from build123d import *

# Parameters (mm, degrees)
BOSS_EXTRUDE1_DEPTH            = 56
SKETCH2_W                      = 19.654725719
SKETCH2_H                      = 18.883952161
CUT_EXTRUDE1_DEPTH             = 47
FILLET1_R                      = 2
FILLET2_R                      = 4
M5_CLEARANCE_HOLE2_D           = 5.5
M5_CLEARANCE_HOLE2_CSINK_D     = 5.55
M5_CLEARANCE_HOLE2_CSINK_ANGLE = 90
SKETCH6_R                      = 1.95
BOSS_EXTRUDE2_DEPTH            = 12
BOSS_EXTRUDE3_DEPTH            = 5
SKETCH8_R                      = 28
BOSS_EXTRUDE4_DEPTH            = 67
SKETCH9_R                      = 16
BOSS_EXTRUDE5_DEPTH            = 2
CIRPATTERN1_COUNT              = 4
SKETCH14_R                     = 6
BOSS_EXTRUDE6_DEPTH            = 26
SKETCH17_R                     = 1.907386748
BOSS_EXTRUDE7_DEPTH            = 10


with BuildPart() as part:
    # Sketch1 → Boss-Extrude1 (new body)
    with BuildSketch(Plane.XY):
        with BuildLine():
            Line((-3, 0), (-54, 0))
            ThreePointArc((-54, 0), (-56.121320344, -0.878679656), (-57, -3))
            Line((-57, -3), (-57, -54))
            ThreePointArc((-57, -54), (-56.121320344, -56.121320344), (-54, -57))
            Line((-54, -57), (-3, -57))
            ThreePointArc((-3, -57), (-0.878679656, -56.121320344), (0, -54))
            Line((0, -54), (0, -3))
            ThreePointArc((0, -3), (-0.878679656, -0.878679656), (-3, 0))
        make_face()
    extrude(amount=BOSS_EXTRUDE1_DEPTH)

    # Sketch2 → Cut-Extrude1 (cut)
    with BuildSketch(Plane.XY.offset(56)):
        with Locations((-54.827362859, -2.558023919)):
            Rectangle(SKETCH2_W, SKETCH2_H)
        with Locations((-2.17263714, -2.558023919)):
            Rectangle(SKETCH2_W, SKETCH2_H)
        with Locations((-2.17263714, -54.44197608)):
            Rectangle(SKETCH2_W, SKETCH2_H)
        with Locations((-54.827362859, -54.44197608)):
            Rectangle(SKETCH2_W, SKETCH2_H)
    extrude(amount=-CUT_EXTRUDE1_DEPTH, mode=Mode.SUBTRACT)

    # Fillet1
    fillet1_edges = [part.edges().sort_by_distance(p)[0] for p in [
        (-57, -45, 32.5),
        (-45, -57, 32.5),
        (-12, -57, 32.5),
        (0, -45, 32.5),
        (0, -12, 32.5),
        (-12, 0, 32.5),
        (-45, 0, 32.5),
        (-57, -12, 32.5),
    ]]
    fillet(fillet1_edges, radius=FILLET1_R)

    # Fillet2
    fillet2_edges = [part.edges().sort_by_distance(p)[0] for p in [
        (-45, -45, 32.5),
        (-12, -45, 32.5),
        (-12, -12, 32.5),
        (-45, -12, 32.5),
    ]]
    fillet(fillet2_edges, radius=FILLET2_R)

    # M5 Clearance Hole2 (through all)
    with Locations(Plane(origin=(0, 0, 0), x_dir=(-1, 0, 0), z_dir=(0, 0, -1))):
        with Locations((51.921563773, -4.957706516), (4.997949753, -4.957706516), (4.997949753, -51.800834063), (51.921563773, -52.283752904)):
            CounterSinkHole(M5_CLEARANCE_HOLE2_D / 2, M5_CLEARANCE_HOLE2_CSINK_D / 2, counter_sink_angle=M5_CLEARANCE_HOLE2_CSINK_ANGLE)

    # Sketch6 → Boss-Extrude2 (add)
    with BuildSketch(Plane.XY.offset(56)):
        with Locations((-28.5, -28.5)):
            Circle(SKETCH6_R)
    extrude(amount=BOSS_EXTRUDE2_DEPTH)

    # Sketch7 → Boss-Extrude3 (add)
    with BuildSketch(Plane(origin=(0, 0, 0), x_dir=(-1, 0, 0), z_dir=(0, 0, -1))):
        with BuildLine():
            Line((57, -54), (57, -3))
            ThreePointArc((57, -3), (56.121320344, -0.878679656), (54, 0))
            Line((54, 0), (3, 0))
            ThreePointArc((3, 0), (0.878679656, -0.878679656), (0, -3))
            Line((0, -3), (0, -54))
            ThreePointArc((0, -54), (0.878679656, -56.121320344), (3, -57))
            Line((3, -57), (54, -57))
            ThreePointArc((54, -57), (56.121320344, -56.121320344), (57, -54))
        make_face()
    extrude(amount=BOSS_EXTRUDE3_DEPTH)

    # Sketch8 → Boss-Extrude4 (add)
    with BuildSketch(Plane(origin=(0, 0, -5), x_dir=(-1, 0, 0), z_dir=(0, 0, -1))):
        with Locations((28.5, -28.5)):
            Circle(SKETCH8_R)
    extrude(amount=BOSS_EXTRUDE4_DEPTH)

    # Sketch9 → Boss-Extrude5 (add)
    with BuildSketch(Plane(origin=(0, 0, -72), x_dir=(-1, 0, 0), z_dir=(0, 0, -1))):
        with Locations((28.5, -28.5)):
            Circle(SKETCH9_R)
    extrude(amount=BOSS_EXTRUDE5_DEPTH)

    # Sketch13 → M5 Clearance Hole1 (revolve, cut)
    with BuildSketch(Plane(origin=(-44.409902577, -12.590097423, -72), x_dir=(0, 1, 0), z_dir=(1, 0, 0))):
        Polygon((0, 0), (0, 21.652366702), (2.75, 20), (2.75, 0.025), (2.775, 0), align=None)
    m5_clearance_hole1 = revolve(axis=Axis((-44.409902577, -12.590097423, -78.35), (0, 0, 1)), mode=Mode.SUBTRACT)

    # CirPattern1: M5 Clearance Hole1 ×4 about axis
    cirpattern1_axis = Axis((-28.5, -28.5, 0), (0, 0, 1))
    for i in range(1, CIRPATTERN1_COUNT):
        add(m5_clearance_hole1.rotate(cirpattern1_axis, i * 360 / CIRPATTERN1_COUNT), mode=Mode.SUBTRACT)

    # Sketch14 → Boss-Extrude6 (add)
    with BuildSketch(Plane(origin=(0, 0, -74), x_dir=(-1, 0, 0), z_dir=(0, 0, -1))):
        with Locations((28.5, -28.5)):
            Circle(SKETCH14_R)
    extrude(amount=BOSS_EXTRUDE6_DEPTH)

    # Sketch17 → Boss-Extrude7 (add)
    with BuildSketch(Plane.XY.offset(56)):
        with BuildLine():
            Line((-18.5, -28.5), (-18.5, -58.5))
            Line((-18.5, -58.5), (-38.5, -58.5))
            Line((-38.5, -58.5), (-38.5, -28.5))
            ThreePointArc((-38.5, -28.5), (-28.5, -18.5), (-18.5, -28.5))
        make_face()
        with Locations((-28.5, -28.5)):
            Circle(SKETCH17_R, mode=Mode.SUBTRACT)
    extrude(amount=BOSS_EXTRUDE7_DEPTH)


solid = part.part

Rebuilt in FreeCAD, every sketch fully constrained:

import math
import FreeCAD as App
import Part
import Sketcher
Q = App.Units.Quantity


def edges_at(feature, points):
    """Names of the edges that pass closest to the given points."""
    edges = feature.Shape.Edges
    near = lambda p: min(range(len(edges)), key=lambda i: edges[i].distToShape(Part.Vertex(*p))[0])
    return sorted({f"Edge{near(p) + 1}" for p in points})


def add_polygon(sketch, points):
    """Adds a closed chain of lines whose ends are joined by coincident constraints."""
    first, n = sketch.GeometryCount, len(points)
    for a, b in zip(points, points[1:] + points[:1]):
        sketch.addGeometry(Part.LineSegment(App.Vector(*a, 0), App.Vector(*b, 0)), False)
    for i in range(n):
        sketch.addConstraint(Sketcher.Constraint("Coincident", first + i, 2, first + (i + 1) % n, 1))

doc = App.newDocument("Part")
params = doc.addObject("Spreadsheet::Sheet", "Params")
for row, (alias, value) in enumerate([
    ("sketch1_radius", "3 mm"),
    ("sketch1_width", "51 mm"),
    ("pad1_length", "56 mm"),
    ("pocket1_length", "47 mm"),
    ("fillet_radius", "2 mm"),
    ("fillet2_radius", "4 mm"),
    ("sketch3_diameter", "5.5 mm"),
    ("hole_diameter", "5.5 mm"),
    ("hole_csink_diameter", "5.55 mm"),
    ("sketch4_diameter", "3.9 mm"),
    ("pad2_length", "12 mm"),
    ("sketch5_radius", "3 mm"),
    ("sketch5_width", "51 mm"),
    ("pad3_length", "5 mm"),
    ("sketch6_diameter", "56 mm"),
    ("pad4_length", "67 mm"),
    ("sketch7_diameter", "32 mm"),
    ("pad5_length", "2 mm"),
    ("groove_angle", "360 deg"),
    ("sketch9_diameter", "12 mm"),
    ("pad6_length", "26 mm"),
    ("sketch10_radius", "10 mm"),
    ("sketch10_height", "30 mm"),
    ("pad7_length", "10 mm"),
], start=1):
    params.set(f"A{row}", alias)
    params.set(f"B{row}", "=" + value)
    params.setAlias(f"B{row}", alias)

body = doc.addObject("PartDesign::Body", "Body")

# Sketch on XY plane
sketch1 = body.newObject("Sketcher::SketchObject", "Sketch")
sketch1.AttachmentSupport = (doc.getObject("XY_Plane"), [""])
sketch1.MapMode = "FlatFace"
sketch1.addGeometry([
    Part.LineSegment(App.Vector(-3, 0, 0), App.Vector(-54, 0, 0)),  # 0
    Part.ArcOfCircle(Part.Circle(App.Vector(-54, -3, 0), App.Vector(0, 0, 1), 3), math.radians(90), math.radians(180)),  # 1
    Part.LineSegment(App.Vector(-57, -3, 0), App.Vector(-57, -54, 0)),  # 2
    Part.ArcOfCircle(Part.Circle(App.Vector(-54, -54, 0), App.Vector(0, 0, 1), 3), math.radians(180), math.radians(270)),  # 3
    Part.LineSegment(App.Vector(-54, -57, 0), App.Vector(-3, -57, 0)),  # 4
    Part.ArcOfCircle(Part.Circle(App.Vector(-3, -54, 0), App.Vector(0, 0, 1), 3), math.radians(-90), math.radians(0)),  # 5
    Part.LineSegment(App.Vector(0, -54, 0), App.Vector(0, -3, 0)),  # 6
    Part.ArcOfCircle(Part.Circle(App.Vector(-3, -3, 0), App.Vector(0, 0, 1), 3), math.radians(0), math.radians(90)),  # 7
], False)
sketch1.addConstraint([
    Sketcher.Constraint("Tangent", 0, 2, 1, 1),
    Sketcher.Constraint("Tangent", 1, 2, 2, 1),
    Sketcher.Constraint("Tangent", 2, 2, 3, 1),
    Sketcher.Constraint("Tangent", 3, 2, 4, 1),
    Sketcher.Constraint("Tangent", 4, 2, 5, 1),
    Sketcher.Constraint("Tangent", 5, 2, 6, 1),
    Sketcher.Constraint("Tangent", 6, 2, 7, 1),
    Sketcher.Constraint("Tangent", 7, 2, 0, 1),
    Sketcher.Constraint("Horizontal", 0),
    Sketcher.Constraint("Vertical", 2),
    Sketcher.Constraint("Horizontal", 4),
    Sketcher.Constraint("Vertical", 6),
    Sketcher.Constraint("Equal", 1, 3),
    Sketcher.Constraint("Equal", 3, 5),
    Sketcher.Constraint("Equal", 5, 7),
    Sketcher.Constraint("PointOnObject", 0, 2, -1),
    Sketcher.Constraint("PointOnObject", 5, 2, -2),
    Sketcher.Constraint("Equal", 4, 2),
    Sketcher.Constraint("Radius", 1, Q("3 mm")),
    Sketcher.Constraint("DistanceX", 0, 2, 0, 1, Q("51 mm")),
])
sketch1.setExpression("Constraints[18]", "Params.sketch1_radius")
sketch1.setExpression("Constraints[19]", "Params.sketch1_width")
pad1 = body.newObject("PartDesign::Pad", "Pad")
pad1.Profile = sketch1
pad1.setExpression("Length", "Params.pad1_length")

# Sketch on XY plane
sketch2 = body.newObject("Sketcher::SketchObject", "Sketch001")
sketch2.AttachmentSupport = (doc.getObject("XY_Plane"), [""])
sketch2.MapMode = "FlatFace"
sketch2.AttachmentOffset = App.Placement(App.Vector(0, 0, 56), App.Rotation())
add_polygon(sketch2, [(-64.654726, 6.883952), (-64.654726, -12), (-45, -12), (-45, 6.883952)])  # lines 0-3
add_polygon(sketch2, [(-12, 6.883952), (-12, -12), (7.654726, -12), (7.654726, 6.883952)])  # lines 4-7
add_polygon(sketch2, [(-12, -45), (-12, -63.883952), (7.654726, -63.883952), (7.654726, -45)])  # lines 8-11
add_polygon(sketch2, [(-64.654726, -45), (-64.654726, -63.883952), (-45, -63.883952), (-45, -45)])  # lines 12-15
sketch2.addConstraint([
    Sketcher.Constraint("Vertical", 0),
    Sketcher.Constraint("Horizontal", 1),
    Sketcher.Constraint("Vertical", 2),
    Sketcher.Constraint("Horizontal", 3),
    Sketcher.Constraint("Vertical", 4),
    Sketcher.Constraint("Horizontal", 5),
    Sketcher.Constraint("Vertical", 6),
    Sketcher.Constraint("Horizontal", 7),
    Sketcher.Constraint("Vertical", 8),
    Sketcher.Constraint("Horizontal", 9),
    Sketcher.Constraint("Vertical", 10),
    Sketcher.Constraint("Horizontal", 11),
    Sketcher.Constraint("Vertical", 12),
    Sketcher.Constraint("Horizontal", 13),
    Sketcher.Constraint("Vertical", 14),
    Sketcher.Constraint("Horizontal", 15),
    Sketcher.Constraint("Horizontal", 1, 2, 4, 2),
    Sketcher.Constraint("Horizontal", 3, 2, 6, 2),
    Sketcher.Constraint("Horizontal", 9, 2, 12, 2),
    Sketcher.Constraint("Horizontal", 11, 2, 14, 2),
    Sketcher.Constraint("Vertical", 7, 2, 8, 2),
    Sketcher.Constraint("Vertical", 6, 2, 9, 2),
    Sketcher.Constraint("Vertical", 3, 2, 12, 2),
    Sketcher.Constraint("Vertical", 2, 2, 13, 2),
    Sketcher.Constraint("Equal", 3, 5),
    Sketcher.Constraint("Equal", 6, 8),
    Sketcher.Constraint("DistanceY", 0, 2, -1, 1, Q("12 mm")),
    Sketcher.Constraint("DistanceX", 1, 2, -1, 1, Q("45 mm")),
    Sketcher.Constraint("DistanceX", 4, 2, -1, 1, Q("12 mm")),
    Sketcher.Constraint("DistanceY", 10, 2, -1, 1, Q("45 mm")),
    Sketcher.Constraint("DistanceX", 1, 1, 1, 2, Q("19.654726 mm")),
    Sketcher.Constraint("DistanceY", 0, 2, 0, 1, Q("18.883952 mm")),
])
pocket1 = body.newObject("PartDesign::Pocket", "Pocket")
pocket1.Profile = sketch2
pocket1.setExpression("Length", "Params.pocket1_length")
doc.recompute()

fillet = body.newObject("PartDesign::Fillet", "Fillet")
fillet.Base = (pocket1, edges_at(pocket1, [
    (-57, -45, 32.5),
    (-45, -57, 32.5),
    (-12, -57, 32.5),
    (0, -45, 32.5),
    (0, -12, 32.5),
    (-12, 0, 32.5),
    (-45, 0, 32.5),
    (-57, -12, 32.5),
]))
fillet.setExpression("Radius", "Params.fillet_radius")
doc.recompute()

fillet2 = body.newObject("PartDesign::Fillet", "Fillet001")
fillet2.Base = (fillet, edges_at(fillet, [
    (-45, -45, 32.5),
    (-12, -45, 32.5),
    (-12, -12, 32.5),
    (-45, -12, 32.5),
]))
fillet2.setExpression("Radius", "Params.fillet2_radius")

# Sketch on XY plane
sketch3 = body.newObject("Sketcher::SketchObject", "Sketch002")
sketch3.AttachmentSupport = (doc.getObject("XY_Plane"), [""])
sketch3.MapMode = "FlatFace"
sketch3.addGeometry([
    Part.Circle(App.Vector(-51.921564, -4.957707, 0), App.Vector(0, 0, 1), 2.75),
    Part.Circle(App.Vector(-4.99795, -4.957707, 0), App.Vector(0, 0, 1), 2.75),
    Part.Circle(App.Vector(-4.99795, -51.800834, 0), App.Vector(0, 0, 1), 2.75),
    Part.Circle(App.Vector(-51.921564, -52.283753, 0), App.Vector(0, 0, 1), 2.75),
], False)
sketch3.addConstraint([
    Sketcher.Constraint("Equal", 0, 1),
    Sketcher.Constraint("Equal", 1, 2),
    Sketcher.Constraint("Equal", 2, 3),
    Sketcher.Constraint("Horizontal", 0, 3, 1, 3),
    Sketcher.Constraint("Vertical", 1, 3, 2, 3),
    Sketcher.Constraint("Vertical", 0, 3, 3, 3),
    Sketcher.Constraint("Diameter", 0, Q("5.5 mm")),
    Sketcher.Constraint("DistanceX", 1, 3, -1, 1, Q("4.99795 mm")),
    Sketcher.Constraint("DistanceY", 3, 3, 2, 3, Q("0.482919 mm")),
    Sketcher.Constraint("DistanceX", 0, 3, -1, 1, Q("51.921564 mm")),
    Sketcher.Constraint("DistanceY", 0, 3, -1, 1, Q("4.957707 mm")),
    Sketcher.Constraint("DistanceY", 2, 3, -1, 1, Q("51.800834 mm")),
])
sketch3.setExpression("Constraints[6]", "Params.sketch3_diameter")
doc.recompute()
hole = body.newObject("PartDesign::Hole", "Hole")
hole.Profile = sketch3
hole.ThreadType = "None"
hole.setExpression("Diameter", "Params.hole_diameter")
hole.DepthType = "ThroughAll"
hole.HoleCutType = "Countersink"
hole.setExpression("HoleCutDiameter", "Params.hole_csink_diameter")
hole.HoleCutCountersinkAngle = 90
hole.Reversed = True

# Sketch on XY plane
sketch4 = body.newObject("Sketcher::SketchObject", "Sketch003")
sketch4.AttachmentSupport = (doc.getObject("XY_Plane"), [""])
sketch4.MapMode = "FlatFace"
sketch4.AttachmentOffset = App.Placement(App.Vector(0, 0, 56), App.Rotation())
sketch4.addGeometry(Part.Circle(App.Vector(-28.5, -28.5, 0), App.Vector(0, 0, 1), 1.95), False)
sketch4.addConstraint([
    Sketcher.Constraint("Diameter", 0, Q("3.9 mm")),
    Sketcher.Constraint("DistanceX", 0, 3, -1, 1, Q("28.5 mm")),
    Sketcher.Constraint("DistanceY", 0, 3, -1, 1, Q("28.5 mm")),
])
sketch4.setExpression("Constraints[0]", "Params.sketch4_diameter")
pad2 = body.newObject("PartDesign::Pad", "Pad001")
pad2.Profile = sketch4
pad2.setExpression("Length", "Params.pad2_length")

# Sketch on XY plane
sketch5 = body.newObject("Sketcher::SketchObject", "Sketch004")
sketch5.AttachmentSupport = (doc.getObject("XY_Plane"), [""])
sketch5.MapMode = "FlatFace"
sketch5.addGeometry([
    Part.LineSegment(App.Vector(-57, -54, 0), App.Vector(-57, -3, 0)),  # 0
    Part.ArcOfCircle(Part.Circle(App.Vector(-54, -3, 0), App.Vector(0, 0, 1), 3), math.radians(90), math.radians(180)),  # 1
    Part.LineSegment(App.Vector(-54, 0, 0), App.Vector(-3, 0, 0)),  # 2
    Part.ArcOfCircle(Part.Circle(App.Vector(-3, -3, 0), App.Vector(0, 0, 1), 3), math.radians(0), math.radians(90)),  # 3
    Part.LineSegment(App.Vector(0, -3, 0), App.Vector(0, -54, 0)),  # 4
    Part.ArcOfCircle(Part.Circle(App.Vector(-3, -54, 0), App.Vector(0, 0, 1), 3), math.radians(-90), math.radians(0)),  # 5
    Part.LineSegment(App.Vector(-3, -57, 0), App.Vector(-54, -57, 0)),  # 6
    Part.ArcOfCircle(Part.Circle(App.Vector(-54, -54, 0), App.Vector(0, 0, 1), 3), math.radians(180), math.radians(270)),  # 7
], False)
sketch5.addConstraint([
    Sketcher.Constraint("Tangent", 0, 2, 1, 2),
    Sketcher.Constraint("Tangent", 1, 1, 2, 1),
    Sketcher.Constraint("Tangent", 2, 2, 3, 2),
    Sketcher.Constraint("Tangent", 3, 1, 4, 1),
    Sketcher.Constraint("Tangent", 4, 2, 5, 2),
    Sketcher.Constraint("Tangent", 5, 1, 6, 1),
    Sketcher.Constraint("Tangent", 6, 2, 7, 2),
    Sketcher.Constraint("Tangent", 7, 1, 0, 1),
    Sketcher.Constraint("Vertical", 0),
    Sketcher.Constraint("Horizontal", 2),
    Sketcher.Constraint("Vertical", 4),
    Sketcher.Constraint("Horizontal", 6),
    Sketcher.Constraint("Equal", 1, 3),
    Sketcher.Constraint("Equal", 3, 5),
    Sketcher.Constraint("Equal", 5, 7),
    Sketcher.Constraint("PointOnObject", 1, 1, -1),
    Sketcher.Constraint("PointOnObject", 3, 1, -2),
    Sketcher.Constraint("Equal", 6, 0),
    Sketcher.Constraint("Radius", 1, Q("3 mm")),
    Sketcher.Constraint("DistanceX", 2, 1, 2, 2, Q("51 mm")),
])
sketch5.setExpression("Constraints[18]", "Params.sketch5_radius")
sketch5.setExpression("Constraints[19]", "Params.sketch5_width")
pad3 = body.newObject("PartDesign::Pad", "Pad002")
pad3.Profile = sketch5
pad3.setExpression("Length", "Params.pad3_length")
pad3.Reversed = True

# Sketch on XY plane
sketch6 = body.newObject("Sketcher::SketchObject", "Sketch005")
sketch6.AttachmentSupport = (doc.getObject("XY_Plane"), [""])
sketch6.MapMode = "FlatFace"
sketch6.AttachmentOffset = App.Placement(App.Vector(0, 0, -5), App.Rotation())
sketch6.addGeometry(Part.Circle(App.Vector(-28.5, -28.5, 0), App.Vector(0, 0, 1), 28), False)
sketch6.addConstraint([
    Sketcher.Constraint("Diameter", 0, Q("56 mm")),
    Sketcher.Constraint("DistanceX", 0, 3, -1, 1, Q("28.5 mm")),
    Sketcher.Constraint("DistanceY", 0, 3, -1, 1, Q("28.5 mm")),
])
sketch6.setExpression("Constraints[0]", "Params.sketch6_diameter")
pad4 = body.newObject("PartDesign::Pad", "Pad003")
pad4.Profile = sketch6
pad4.setExpression("Length", "Params.pad4_length")
pad4.Reversed = True

# Sketch on XY plane
sketch7 = body.newObject("Sketcher::SketchObject", "Sketch006")
sketch7.AttachmentSupport = (doc.getObject("XY_Plane"), [""])
sketch7.MapMode = "FlatFace"
sketch7.AttachmentOffset = App.Placement(App.Vector(0, 0, -72), App.Rotation())
sketch7.addGeometry(Part.Circle(App.Vector(-28.5, -28.5, 0), App.Vector(0, 0, 1), 16), False)
sketch7.addConstraint([
    Sketcher.Constraint("Diameter", 0, Q("32 mm")),
    Sketcher.Constraint("DistanceX", 0, 3, -1, 1, Q("28.5 mm")),
    Sketcher.Constraint("DistanceY", 0, 3, -1, 1, Q("28.5 mm")),
])
sketch7.setExpression("Constraints[0]", "Params.sketch7_diameter")
pad5 = body.newObject("PartDesign::Pad", "Pad004")
pad5.Profile = sketch7
pad5.setExpression("Length", "Params.pad5_length")
pad5.Reversed = True

# Sketch on YZ plane
sketch8 = body.newObject("Sketcher::SketchObject", "Sketch007")
sketch8.AttachmentSupport = (doc.getObject("YZ_Plane"), [""])
sketch8.MapMode = "FlatFace"
sketch8.AttachmentOffset = App.Placement(App.Vector(0, 0, -44.409903), App.Rotation())
add_polygon(sketch8, [(-12.590097, -50.347633), (-12.590097, -72), (-9.815097, -72), (-9.840097, -71.975), (-9.840097, -52)])  # lines 0-4
sketch8.addGeometry(Part.LineSegment(App.Vector(-12.590097, -72, 0), App.Vector(-12.590097, -50.347633, 0)), True)  # axis
sketch8.addConstraint([
    Sketcher.Constraint("Vertical", 0),
    Sketcher.Constraint("Horizontal", 1),
    Sketcher.Constraint("Vertical", 3),
    Sketcher.Constraint("Vertical", 5),
    Sketcher.Constraint("Coincident", 5, 1, 0, 2),
    Sketcher.Constraint("Equal", 0, 5),
    Sketcher.Constraint("Angle", 2, Q("135 deg")),
    Sketcher.Constraint("Angle", 4, Q("149 deg")),
    Sketcher.Constraint("DistanceY", 0, 2, -1, 1, Q("72 mm")),
    Sketcher.Constraint("DistanceY", 3, 2, -1, 1, Q("52 mm")),
    Sketcher.Constraint("DistanceX", 1, 1, 1, 2, Q("2.775 mm")),
    Sketcher.Constraint("DistanceY", 3, 1, 3, 2, Q("19.975 mm")),
    Sketcher.Constraint("DistanceX", 0, 2, -1, 1, Q("12.590097 mm")),
])
groove = body.newObject("PartDesign::Groove", "Groove")
groove.Profile = sketch8
groove.ReferenceAxis = (sketch8, ["Axis0"])
groove.setExpression("Angle", "Params.groove_angle")
doc.recompute()

datumline = body.newObject("PartDesign::Line", "DatumLine")
datumline.Placement = App.Placement(App.Vector(-28.5, -28.5, 0), App.Rotation(App.Vector(0, 0, 1), App.Vector(0, 0, 1)))
polarpattern = body.newObject("PartDesign::PolarPattern", "PolarPattern")
polarpattern.Originals = [groove]
polarpattern.Axis = (datumline, [""])
polarpattern.Angle = 360
polarpattern.Occurrences = 4
body.Tip = polarpattern

# Sketch on XY plane
sketch9 = body.newObject("Sketcher::SketchObject", "Sketch008")
sketch9.AttachmentSupport = (doc.getObject("XY_Plane"), [""])
sketch9.MapMode = "FlatFace"
sketch9.AttachmentOffset = App.Placement(App.Vector(0, 0, -74), App.Rotation())
sketch9.addGeometry(Part.Circle(App.Vector(-28.5, -28.5, 0), App.Vector(0, 0, 1), 6), False)
sketch9.addConstraint([
    Sketcher.Constraint("Diameter", 0, Q("12 mm")),
    Sketcher.Constraint("DistanceX", 0, 3, -1, 1, Q("28.5 mm")),
    Sketcher.Constraint("DistanceY", 0, 3, -1, 1, Q("28.5 mm")),
])
sketch9.setExpression("Constraints[0]", "Params.sketch9_diameter")
pad6 = body.newObject("PartDesign::Pad", "Pad005")
pad6.Profile = sketch9
pad6.setExpression("Length", "Params.pad6_length")
pad6.Reversed = True

# Sketch on XY plane
sketch10 = body.newObject("Sketcher::SketchObject", "Sketch009")
sketch10.AttachmentSupport = (doc.getObject("XY_Plane"), [""])
sketch10.MapMode = "FlatFace"
sketch10.AttachmentOffset = App.Placement(App.Vector(0, 0, 56), App.Rotation())
sketch10.addGeometry([
    Part.LineSegment(App.Vector(-18.5, -58.5, 0), App.Vector(-18.5, -28.5, 0)),  # 0
    Part.ArcOfCircle(Part.Circle(App.Vector(-28.5, -28.5, 0), App.Vector(0, 0, 1), 10), math.radians(0), math.radians(180)),  # 1
    Part.LineSegment(App.Vector(-38.5, -28.5, 0), App.Vector(-38.5, -58.5, 0)),  # 2
    Part.LineSegment(App.Vector(-38.5, -58.5, 0), App.Vector(-18.5, -58.5, 0)),  # 3
    Part.Circle(App.Vector(-28.5, -28.5, 0), App.Vector(0, 0, 1), 1.907387),  # 4
], False)
sketch10.addConstraint([
    Sketcher.Constraint("Tangent", 0, 2, 1, 1),
    Sketcher.Constraint("Tangent", 1, 2, 2, 1),
    Sketcher.Constraint("Coincident", 2, 2, 3, 1),
    Sketcher.Constraint("Coincident", 3, 2, 0, 1),
    Sketcher.Constraint("Vertical", 0),
    Sketcher.Constraint("Vertical", 2),
    Sketcher.Constraint("Horizontal", 3),
    Sketcher.Constraint("Coincident", 4, 3, 1, 3),
    Sketcher.Constraint("Radius", 1, Q("10 mm")),
    Sketcher.Constraint("DistanceY", 0, 1, 0, 2, Q("30 mm")),
    Sketcher.Constraint("DistanceX", 1, 3, -1, 1, Q("28.5 mm")),
    Sketcher.Constraint("DistanceY", 1, 3, -1, 1, Q("28.5 mm")),
    Sketcher.Constraint("Diameter", 4, Q("3.814773 mm")),
])
sketch10.setExpression("Constraints[8]", "Params.sketch10_radius")
sketch10.setExpression("Constraints[9]", "Params.sketch10_height")
pad7 = body.newObject("PartDesign::Pad", "Pad006")
pad7.Profile = sketch10
pad7.setExpression("Length", "Params.pad7_length")

doc.recompute()
